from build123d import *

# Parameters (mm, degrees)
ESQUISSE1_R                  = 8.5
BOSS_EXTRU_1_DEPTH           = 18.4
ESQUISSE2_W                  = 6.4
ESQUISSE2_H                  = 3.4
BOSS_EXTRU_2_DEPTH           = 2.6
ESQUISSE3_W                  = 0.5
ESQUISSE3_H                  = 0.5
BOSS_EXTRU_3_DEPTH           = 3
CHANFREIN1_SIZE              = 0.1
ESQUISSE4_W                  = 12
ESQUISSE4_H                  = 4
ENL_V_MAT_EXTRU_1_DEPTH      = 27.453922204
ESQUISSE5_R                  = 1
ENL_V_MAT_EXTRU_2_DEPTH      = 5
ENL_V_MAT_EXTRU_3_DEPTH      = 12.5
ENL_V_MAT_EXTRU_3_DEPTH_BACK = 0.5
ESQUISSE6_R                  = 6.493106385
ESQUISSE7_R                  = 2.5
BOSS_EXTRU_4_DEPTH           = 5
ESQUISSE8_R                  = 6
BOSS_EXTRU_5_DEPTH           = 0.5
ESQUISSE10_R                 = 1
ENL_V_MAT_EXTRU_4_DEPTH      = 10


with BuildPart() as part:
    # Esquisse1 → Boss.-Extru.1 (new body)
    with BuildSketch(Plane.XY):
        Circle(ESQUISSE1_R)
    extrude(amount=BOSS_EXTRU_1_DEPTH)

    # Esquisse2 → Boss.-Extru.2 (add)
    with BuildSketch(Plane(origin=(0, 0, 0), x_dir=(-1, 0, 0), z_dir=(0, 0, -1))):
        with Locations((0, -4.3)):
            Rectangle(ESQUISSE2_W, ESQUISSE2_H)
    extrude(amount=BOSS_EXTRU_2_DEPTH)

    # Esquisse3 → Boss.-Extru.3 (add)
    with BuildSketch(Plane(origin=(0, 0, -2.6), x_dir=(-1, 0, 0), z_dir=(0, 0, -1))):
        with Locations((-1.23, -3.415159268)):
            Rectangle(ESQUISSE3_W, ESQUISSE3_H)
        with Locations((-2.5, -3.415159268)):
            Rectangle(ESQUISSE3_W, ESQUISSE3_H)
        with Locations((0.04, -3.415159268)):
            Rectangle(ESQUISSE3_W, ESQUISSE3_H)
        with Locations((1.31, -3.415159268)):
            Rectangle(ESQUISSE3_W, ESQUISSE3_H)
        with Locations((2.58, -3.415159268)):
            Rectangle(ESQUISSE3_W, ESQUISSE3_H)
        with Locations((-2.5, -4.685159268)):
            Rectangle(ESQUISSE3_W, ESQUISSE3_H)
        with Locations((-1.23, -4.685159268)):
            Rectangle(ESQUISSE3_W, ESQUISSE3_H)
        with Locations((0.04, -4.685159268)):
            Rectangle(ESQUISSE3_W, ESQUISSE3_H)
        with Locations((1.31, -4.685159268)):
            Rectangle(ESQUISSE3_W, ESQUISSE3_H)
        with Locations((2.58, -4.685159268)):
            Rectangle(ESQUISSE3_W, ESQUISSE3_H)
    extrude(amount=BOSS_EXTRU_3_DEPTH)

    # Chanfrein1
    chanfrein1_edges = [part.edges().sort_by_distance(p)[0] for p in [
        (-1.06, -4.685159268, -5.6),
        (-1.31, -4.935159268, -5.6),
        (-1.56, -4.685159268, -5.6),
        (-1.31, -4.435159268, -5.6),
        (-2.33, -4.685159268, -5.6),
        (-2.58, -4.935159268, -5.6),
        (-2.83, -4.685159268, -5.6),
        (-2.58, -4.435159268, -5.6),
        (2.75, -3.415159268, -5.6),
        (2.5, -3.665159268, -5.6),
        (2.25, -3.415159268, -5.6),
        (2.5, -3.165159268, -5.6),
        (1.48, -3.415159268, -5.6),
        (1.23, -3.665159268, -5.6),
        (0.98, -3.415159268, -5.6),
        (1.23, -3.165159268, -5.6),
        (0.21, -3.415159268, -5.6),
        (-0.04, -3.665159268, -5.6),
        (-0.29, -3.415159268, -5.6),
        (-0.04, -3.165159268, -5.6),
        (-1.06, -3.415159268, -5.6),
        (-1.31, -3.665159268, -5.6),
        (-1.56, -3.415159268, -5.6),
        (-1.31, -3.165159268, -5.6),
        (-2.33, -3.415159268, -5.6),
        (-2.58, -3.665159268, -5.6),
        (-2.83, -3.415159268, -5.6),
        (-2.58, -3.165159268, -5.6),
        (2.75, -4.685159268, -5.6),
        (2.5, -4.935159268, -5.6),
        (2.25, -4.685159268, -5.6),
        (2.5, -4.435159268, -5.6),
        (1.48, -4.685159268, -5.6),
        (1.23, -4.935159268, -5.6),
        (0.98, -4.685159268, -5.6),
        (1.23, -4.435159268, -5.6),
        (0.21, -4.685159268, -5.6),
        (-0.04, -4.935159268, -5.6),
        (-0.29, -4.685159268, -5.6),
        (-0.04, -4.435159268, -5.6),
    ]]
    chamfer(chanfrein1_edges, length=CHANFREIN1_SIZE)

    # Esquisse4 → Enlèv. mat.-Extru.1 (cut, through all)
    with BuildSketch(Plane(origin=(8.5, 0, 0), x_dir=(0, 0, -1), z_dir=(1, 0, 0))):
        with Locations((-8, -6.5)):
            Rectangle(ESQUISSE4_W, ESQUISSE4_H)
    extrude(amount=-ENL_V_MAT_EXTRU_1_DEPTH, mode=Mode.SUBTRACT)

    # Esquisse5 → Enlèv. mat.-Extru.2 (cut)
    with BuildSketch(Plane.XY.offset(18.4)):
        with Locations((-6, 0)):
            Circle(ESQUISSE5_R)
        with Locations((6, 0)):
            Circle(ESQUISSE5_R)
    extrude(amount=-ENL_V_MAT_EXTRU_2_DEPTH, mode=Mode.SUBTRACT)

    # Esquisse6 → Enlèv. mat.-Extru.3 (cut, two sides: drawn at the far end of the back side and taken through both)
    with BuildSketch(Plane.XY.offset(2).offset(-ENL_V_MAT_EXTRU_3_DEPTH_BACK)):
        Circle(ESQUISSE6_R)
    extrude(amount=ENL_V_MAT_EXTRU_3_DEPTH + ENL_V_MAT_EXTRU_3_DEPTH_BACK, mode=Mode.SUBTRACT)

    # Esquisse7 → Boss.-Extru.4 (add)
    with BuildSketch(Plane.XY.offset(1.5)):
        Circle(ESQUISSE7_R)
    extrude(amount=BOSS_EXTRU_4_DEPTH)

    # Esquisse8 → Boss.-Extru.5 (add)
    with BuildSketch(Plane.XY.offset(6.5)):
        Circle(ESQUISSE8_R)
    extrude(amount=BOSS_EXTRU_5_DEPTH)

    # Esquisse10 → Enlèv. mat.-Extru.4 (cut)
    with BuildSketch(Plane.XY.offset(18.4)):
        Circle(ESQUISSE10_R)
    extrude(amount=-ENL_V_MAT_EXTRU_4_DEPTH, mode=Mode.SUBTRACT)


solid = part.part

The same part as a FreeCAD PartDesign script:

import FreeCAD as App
import Part
import Sketcher

V = App.Vector


def edges_at(feature, points):
    """Names of the edges that pass closest to the given points."""
    edges = feature.Shape.Edges
    near = lambda p: min(range(len(edges)), key=lambda i: edges[i].distToShape(Part.Vertex(*p))[0])
    return sorted({f"Edge{near(p) + 1}" for p in points})

doc = App.newDocument("Part")
body = doc.addObject("PartDesign::Body", "Body")

# Sketch on XY plane
sketch1 = body.newObject("Sketcher::SketchObject", "Sketch")
sketch1.AttachmentSupport = (doc.getObject("XY_Plane"), [""])
sketch1.MapMode = "FlatFace"
sketch1.addGeometry(Part.Circle(V(0, 0, 0), V(0, 0, 1), 8), False)
sketch1.addConstraint([
    Sketcher.Constraint("Coincident", 0, 3, -1, 1),
    Sketcher.Constraint("Diameter", 0, 17.0),
])
pad1 = body.newObject("PartDesign::Pad", "Pad")
pad1.Profile = sketch1
pad1.Length = 18.4

# Sketch on XY plane
sketch2 = body.newObject("Sketcher::SketchObject", "Sketch001")
sketch2.AttachmentSupport = (doc.getObject("XY_Plane"), [""])
sketch2.MapMode = "FlatFace"
sketch2.addGeometry([
    Part.LineSegment(V(3.2, -2.6, 0), V(3.2, -6, 0)),
    Part.LineSegment(V(3.2, -6, 0), V(-3.2, -6, 0)),
    Part.LineSegment(V(-3.2, -6, 0), V(-3.2, -2.6, 0)),
    Part.LineSegment(V(-3.2, -2.6, 0), V(3.2, -2.6, 0)),
], False)
sketch2.addConstraint([
    Sketcher.Constraint("Coincident", 0, 2, 1, 1),
    Sketcher.Constraint("Coincident", 1, 2, 2, 1),
    Sketcher.Constraint("Coincident", 2, 2, 3, 1),
    Sketcher.Constraint("Coincident", 3, 2, 0, 1),
    Sketcher.Constraint("Vertical", 0),
    Sketcher.Constraint("Horizontal", 1),
    Sketcher.Constraint("Vertical", 2),
    Sketcher.Constraint("Horizontal", 3),
    Sketcher.Constraint("DistanceX", 1, 2, 1, 1, 6.4),
    Sketcher.Constraint("DistanceY", 0, 2, 0, 1, 3.4),
    Sketcher.Constraint("DistanceY", 0, 2, -1, 1, 6.0),
    Sketcher.Constraint("DistanceX", -1, 1, 0, 2, 3.2),
])
pad2 = body.newObject("PartDesign::Pad", "Pad001")
pad2.Profile = sketch2
pad2.Length = 2.6
pad2.Reversed = True

# Sketch on XY plane
sketch3 = body.newObject("Sketcher::SketchObject", "Sketch002")
sketch3.AttachmentSupport = (doc.getObject("XY_Plane"), [""])
sketch3.MapMode = "FlatFace"
sketch3.AttachmentOffset = App.Placement(V(0, 0, -2.6), App.Rotation())
sketch3.addGeometry([
    Part.LineSegment(V(1.5, -3.2, 0), V(1.5, -3.7, 0)),  # 0
    Part.LineSegment(V(1.5, -3.7, 0), V(1, -3.7, 0)),  # 1
    Part.LineSegment(V(1, -3.7, 0), V(1, -3.2, 0)),  # 2
    Part.LineSegment(V(1, -3.2, 0), V(1.5, -3.2, 0)),  # 3
    Part.LineSegment(V(2.8, -3.2, 0), V(2.8, -3.7, 0)),  # 4
    Part.LineSegment(V(2.8, -3.7, 0), V(2.2, -3.7, 0)),  # 5
    Part.LineSegment(V(2.2, -3.7, 0), V(2.2, -3.2, 0)),  # 6
    Part.LineSegment(V(2.2, -3.2, 0), V(2.8, -3.2, 0)),  # 7
    Part.LineSegment(V(0.2, -3.2, 0), V(0.2, -3.7, 0)),  # 8
    Part.LineSegment(V(0.2, -3.7, 0), V(-0.3, -3.7, 0)),  # 9
    Part.LineSegment(V(-0.3, -3.7, 0), V(-0.3, -3.2, 0)),  # 10
    Part.LineSegment(V(-0.3, -3.2, 0), V(0.2, -3.2, 0)),  # 11
    Part.LineSegment(V(-1.1, -3.2, 0), V(-1.1, -3.7, 0)),  # 12
    Part.LineSegment(V(-1.1, -3.7, 0), V(-1.6, -3.7, 0)),  # 13
    Part.LineSegment(V(-1.6, -3.7, 0), V(-1.6, -3.2, 0)),  # 14
    Part.LineSegment(V(-1.6, -3.2, 0), V(-1.1, -3.2, 0)),  # 15
    Part.LineSegment(V(-2.3, -3.2, 0), V(-2.3, -3.7, 0)),  # 16
    Part.LineSegment(V(-2.3, -3.7, 0), V(-2.8, -3.7, 0)),  # 17
    Part.LineSegment(V(-2.8, -3.7, 0), V(-2.8, -3.2, 0)),  # 18
    Part.LineSegment(V(-2.8, -3.2, 0), V(-2.3, -3.2, 0)),  # 19
    Part.LineSegment(V(2.8, -4.4, 0), V(2.8, -4.9, 0)),  # 20
    Part.LineSegment(V(2.8, -4.9, 0), V(2.2, -4.9, 0)),  # 21
    Part.LineSegment(V(2.2, -4.9, 0), V(2.2, -4.4, 0)),  # 22
    Part.LineSegment(V(2.2, -4.4, 0), V(2.8, -4.4, 0)),  # 23
    Part.LineSegment(V(1.5, -4.4, 0), V(1.5, -4.9, 0)),  # 24
    Part.LineSegment(V(1.5, -4.9, 0), V(1, -4.9, 0)),  # 25
    Part.LineSegment(V(1, -4.9, 0), V(1, -4.4, 0)),  # 26
    Part.LineSegment(V(1, -4.4, 0), V(1.5, -4.4, 0)),  # 27
    Part.LineSegment(V(0.2, -4.4, 0), V(0.2, -4.9, 0)),  # 28
    Part.LineSegment(V(0.2, -4.9, 0), V(-0.3, -4.9, 0)),  # 29
    Part.LineSegment(V(-0.3, -4.9, 0), V(-0.3, -4.4, 0)),  # 30
    Part.LineSegment(V(-0.3, -4.4, 0), V(0.2, -4.4, 0)),  # 31
    Part.LineSegment(V(-1.1, -4.4, 0), V(-1.1, -4.9, 0)),  # 32
    Part.LineSegment(V(-1.1, -4.9, 0), V(-1.6, -4.9, 0)),  # 33
    Part.LineSegment(V(-1.6, -4.9, 0), V(-1.6, -4.4, 0)),  # 34
    Part.LineSegment(V(-1.6, -4.4, 0), V(-1.1, -4.4, 0)),  # 35
    Part.LineSegment(V(-2.3, -4.4, 0), V(-2.3, -4.9, 0)),  # 36
    Part.LineSegment(V(-2.3, -4.9, 0), V(-2.8, -4.9, 0)),  # 37
    Part.LineSegment(V(-2.8, -4.9, 0), V(-2.8, -4.4, 0)),  # 38
    Part.LineSegment(V(-2.8, -4.4, 0), V(-2.3, -4.4, 0)),  # 39
], False)
sketch3.addConstraint([
    Sketcher.Constraint("Coincident", 0, 2, 1, 1),
    Sketcher.Constraint("Coincident", 1, 2, 2, 1),
    Sketcher.Constraint("Coincident", 2, 2, 3, 1),
    Sketcher.Constraint("Coincident", 3, 2, 0, 1),
    Sketcher.Constraint("Coincident", 4, 2, 5, 1),
    Sketcher.Constraint("Coincident", 5, 2, 6, 1),
    Sketcher.Constraint("Coincident", 6, 2, 7, 1),
    Sketcher.Constraint("Coincident", 7, 2, 4, 1),
    Sketcher.Constraint("Coincident", 8, 2, 9, 1),
    Sketcher.Constraint("Coincident", 9, 2, 10, 1),
    Sketcher.Constraint("Coincident", 10, 2, 11, 1),
    Sketcher.Constraint("Coincident", 11, 2, 8, 1),
    Sketcher.Constraint("Coincident", 12, 2, 13, 1),
    Sketcher.Constraint("Coincident", 13, 2, 14, 1),
    Sketcher.Constraint("Coincident", 14, 2, 15, 1),
    Sketcher.Constraint("Coincident", 15, 2, 12, 1),
    Sketcher.Constraint("Coincident", 16, 2, 17, 1),
    Sketcher.Constraint("Coincident", 17, 2, 18, 1),
    Sketcher.Constraint("Coincident", 18, 2, 19, 1),
    Sketcher.Constraint("Coincident", 19, 2, 16, 1),
    Sketcher.Constraint("Coincident", 20, 2, 21, 1),
    Sketcher.Constraint("Coincident", 21, 2, 22, 1),
    Sketcher.Constraint("Coincident", 22, 2, 23, 1),
    Sketcher.Constraint("Coincident", 23, 2, 20, 1),
    Sketcher.Constraint("Coincident", 24, 2, 25, 1),
    Sketcher.Constraint("Coincident", 25, 2, 26, 1),
    Sketcher.Constraint("Coincident", 26, 2, 27, 1),
    Sketcher.Constraint("Coincident", 27, 2, 24, 1),
    Sketcher.Constraint("Coincident", 28, 2, 29, 1),
    Sketcher.Constraint("Coincident", 29, 2, 30, 1),
    Sketcher.Constraint("Coincident", 30, 2, 31, 1),
    Sketcher.Constraint("Coincident", 31, 2, 28, 1),
    Sketcher.Constraint("Coincident", 32, 2, 33, 1),
    Sketcher.Constraint("Coincident", 33, 2, 34, 1),
    Sketcher.Constraint("Coincident", 34, 2, 35, 1),
    Sketcher.Constraint("Coincident", 35, 2, 32, 1),
    Sketcher.Constraint("Coincident", 36, 2, 37, 1),
    Sketcher.Constraint("Coincident", 37, 2, 38, 1),
    Sketcher.Constraint("Coincident", 38, 2, 39, 1),
    Sketcher.Constraint("Coincident", 39, 2, 36, 1),
    Sketcher.Constraint("Vertical", 0),
    Sketcher.Constraint("Horizontal", 1),
    Sketcher.Constraint("Vertical", 2),
    Sketcher.Constraint("Horizontal", 3),
    Sketcher.Constraint("Vertical", 4),
    Sketcher.Constraint("Horizontal", 5),
    Sketcher.Constraint("Vertical", 6),
    Sketcher.Constraint("Horizontal", 7),
    Sketcher.Constraint("Vertical", 8),
    Sketcher.Constraint("Horizontal", 9),
    Sketcher.Constraint("Vertical", 10),
    Sketcher.Constraint("Horizontal", 11),
    Sketcher.Constraint("Vertical", 12),
    Sketcher.Constraint("Horizontal", 13),
    Sketcher.Constraint("Vertical", 14),
    Sketcher.Constraint("Horizontal", 15),
    Sketcher.Constraint("Vertical", 16),
    Sketcher.Constraint("Horizontal", 17),
    Sketcher.Constraint("Vertical", 18),
    Sketcher.Constraint("Horizontal", 19),
    Sketcher.Constraint("Vertical", 20),
    Sketcher.Constraint("Horizontal", 21),
    Sketcher.Constraint("Vertical", 22),
    Sketcher.Constraint("Horizontal", 23),
    Sketcher.Constraint("Vertical", 24),
    Sketcher.Constraint("Horizontal", 25),
    Sketcher.Constraint("Vertical", 26),
    Sketcher.Constraint("Horizontal", 27),
    Sketcher.Constraint("Vertical", 28),
    Sketcher.Constraint("Horizontal", 29),
    Sketcher.Constraint("Vertical", 30),
    Sketcher.Constraint("Horizontal", 31),
    Sketcher.Constraint("Vertical", 32),
    Sketcher.Constraint("Horizontal", 33),
    Sketcher.Constraint("Vertical", 34),
    Sketcher.Constraint("Horizontal", 35),
    Sketcher.Constraint("Vertical", 36),
    Sketcher.Constraint("Horizontal", 37),
    Sketcher.Constraint("Vertical", 38),
    Sketcher.Constraint("Horizontal", 39),
    Sketcher.Constraint("Horizontal", 1, 2, 4, 2),
    Sketcher.Constraint("Horizontal", 3, 2, 6, 2),
    Sketcher.Constraint("Horizontal", 5, 2, 8, 2),
    Sketcher.Constraint("Horizontal", 7, 2, 10, 2),
    Sketcher.Constraint("Horizontal", 9, 2, 12, 2),
    Sketcher.Constraint("Horizontal", 11, 2, 14, 2),
    Sketcher.Constraint("Horizontal", 13, 2, 16, 2),
    Sketcher.Constraint("Horizontal", 15, 2, 18, 2),
    Sketcher.Constraint("Horizontal", 21, 2, 24, 2),
    Sketcher.Constraint("Horizontal", 23, 2, 26, 2),
    Sketcher.Constraint("Horizontal", 25, 2, 28, 2),
    Sketcher.Constraint("Horizontal", 27, 2, 30, 2),
    Sketcher.Constraint("Horizontal", 29, 2, 32, 2),
    Sketcher.Constraint("Horizontal", 31, 2, 34, 2),
    Sketcher.Constraint("Horizontal", 33, 2, 36, 2),
    Sketcher.Constraint("Horizontal", 35, 2, 38, 2),
    Sketcher.Constraint("Vertical", 7, 2, 20, 2),
    Sketcher.Constraint("Vertical", 6, 2, 21, 2),
    Sketcher.Constraint("Vertical", 3, 2, 24, 2),
    Sketcher.Constraint("Vertical", 2, 2, 25, 2),
    Sketcher.Constraint("Vertical", 11, 2, 28, 2),
    Sketcher.Constraint("Vertical", 10, 2, 29, 2),
    Sketcher.Constraint("Vertical", 15, 2, 32, 2),
    Sketcher.Constraint("Vertical", 14, 2, 33, 2),
    Sketcher.Constraint("Vertical", 19, 2, 36, 2),
    Sketcher.Constraint("Vertical", 18, 2, 37, 2),
    Sketcher.Constraint("Equal", 3, 5),
    Sketcher.Constraint("Equal", 7, 9),
    Sketcher.Constraint("Equal", 11, 13),
    Sketcher.Constraint("Equal", 15, 17),
    Sketcher.Constraint("Equal", 39, 0),
    Sketcher.Constraint("Equal", 18, 20),
    Sketcher.Constraint("DistanceX", 1, 2, 1, 1, 0.5),
    Sketcher.Constraint("DistanceX", -1, 1, 0, 2, 1.48),
    Sketcher.Constraint("DistanceX", -1, 1, 4, 2, 2.75),
    Sketcher.Constraint("DistanceX", -1, 1, 8, 2, 0.21),
    Sketcher.Constraint("DistanceX", 12, 2, -1, 1, 1.06),
    Sketcher.Constraint("DistanceX", 16, 2, -1, 1, 2.33),
    Sketcher.Constraint("DistanceY", 20, 2, 4, 2, 1.27),
    Sketcher.Constraint("DistanceY", 0, 2, -1, 1, 3.665159),
])
pad3 = body.newObject("PartDesign::Pad", "Pad002")
pad3.Profile = sketch3
pad3.Length = 3
pad3.Reversed = True
doc.recompute()

chamfer = body.newObject("PartDesign::Chamfer", "Chamfer")
chamfer.Base = (pad3, edges_at(pad3, [
    (-1.06, -4.685, -5.6),
    (-1.31, -4.935, -5.6),
    (-1.56, -4.685, -5.6),
    (-1.31, -4.435, -5.6),
    (-2.33, -4.685, -5.6),
    (-2.58, -4.935, -5.6),
    (-2.83, -4.685, -5.6),
    (-2.58, -4.435, -5.6),
    (2.75, -3.415, -5.6),
    (2.5, -3.665, -5.6),
    (2.25, -3.415, -5.6),
    (2.5, -3.165, -5.6),
    (1.48, -3.415, -5.6),
    (1.23, -3.665, -5.6),
    (0.98, -3.415, -5.6),
    (1.23, -3.165, -5.6),
    (0.21, -3.415, -5.6),
    (-0.04, -3.665, -5.6),
    (-0.29, -3.415, -5.6),
    (-0.04, -3.165, -5.6),
    (-1.06, -3.415, -5.6),
    (-1.31, -3.665, -5.6),
    (-1.56, -3.415, -5.6),
    (-1.31, -3.165, -5.6),
    (-2.33, -3.415, -5.6),
    (-2.58, -3.665, -5.6),
    (-2.83, -3.415, -5.6),
    (-2.58, -3.165, -5.6),
    (2.75, -4.685, -5.6),
    (2.5, -4.935, -5.6),
    (2.25, -4.685, -5.6),
    (2.5, -4.435, -5.6),
    (1.48, -4.685, -5.6),
    (1.23, -4.935, -5.6),
    (0.98, -4.685, -5.6),
    (1.23, -4.435, -5.6),
    (0.21, -4.685, -5.6),
    (-0.04, -4.935, -5.6),
    (-0.29, -4.685, -5.6),
    (-0.04, -4.435, -5.6),
]))
chamfer.Size = 0.1

# Sketch on YZ plane
sketch4 = body.newObject("Sketcher::SketchObject", "Sketch003")
sketch4.AttachmentSupport = (doc.getObject("YZ_Plane"), [""])
sketch4.MapMode = "FlatFace"
sketch4.AttachmentOffset = App.Placement(V(0, 0, 8.5), App.Rotation())
sketch4.addGeometry([
    Part.LineSegment(V(-4.5, 14, 0), V(-8.5, 14, 0)),
    Part.LineSegment(V(-8.5, 14, 0), V(-8.5, 2, 0)),
    Part.LineSegment(V(-8.5, 2, 0), V(-4.5, 2, 0)),
    Part.LineSegment(V(-4.5, 2, 0), V(-4.5, 14, 0)),
], False)
sketch4.addConstraint([
    Sketcher.Constraint("Coincident", 0, 2, 1, 1),
    Sketcher.Constraint("Coincident", 1, 2, 2, 1),
    Sketcher.Constraint("Coincident", 2, 2, 3, 1),
    Sketcher.Constraint("Coincident", 3, 2, 0, 1),
    Sketcher.Constraint("Horizontal", 0),
    Sketcher.Constraint("Vertical", 1),
    Sketcher.Constraint("Horizontal", 2),
    Sketcher.Constraint("Vertical", 3),
    Sketcher.Constraint("DistanceX", 0, 2, 0, 1, 4.0),
    Sketcher.Constraint("DistanceY", 1, 2, 1, 1, 12.0),
    Sketcher.Constraint("DistanceY", -1, 1, 0, 2, 14.0),
    Sketcher.Constraint("DistanceX", 0, 2, -1, 1, 8.5),
])
pocket1 = body.newObject("PartDesign::Pocket", "Pocket")
pocket1.Profile = sketch4
pocket1.Type = "ThroughAll"

# Sketch on XY plane
sketch5 = body.newObject("Sketcher::SketchObject", "Sketch004")
sketch5.AttachmentSupport = (doc.getObject("XY_Plane"), [""])
sketch5.MapMode = "FlatFace"
sketch5.AttachmentOffset = App.Placement(V(0, 0, 18.4), App.Rotation())
sketch5.addGeometry([
    Part.Circle(V(-6, 0, 0), V(0, 0, 1), 1),
    Part.Circle(V(6, 0, 0), V(0, 0, 1), 1),
], False)
sketch5.addConstraint([
    Sketcher.Constraint("Equal", 0, 1),
    Sketcher.Constraint("Symmetric", 0, 3, 1, 3, -1, 1),
    Sketcher.Constraint("PointOnObject", 0, 3, -1),
    Sketcher.Constraint("Diameter", 0, 2.0),
    Sketcher.Constraint("DistanceX", 0, 3, -1, 1, 6.0),
])
pocket2 = body.newObject("PartDesign::Pocket", "Pocket001")
pocket2.Profile = sketch5
pocket2.Length = 5

# Sketch on XY plane
sketch6 = body.newObject("Sketcher::SketchObject", "Sketch005")
sketch6.AttachmentSupport = (doc.getObject("XY_Plane"), [""])
sketch6.MapMode = "FlatFace"
sketch6.AttachmentOffset = App.Placement(V(0, 0, 2), App.Rotation())
sketch6.addGeometry(Part.Circle(V(0, 0, 0), V(0, 0, 1), 6), False)
sketch6.addConstraint([
    Sketcher.Constraint("Coincident", 0, 3, -1, 1),
    Sketcher.Constraint("Diameter", 0, 12.986213),
])
pocket3 = body.newObject("PartDesign::Pocket", "Pocket002")
pocket3.Profile = sketch6
pocket3.Type = "TwoLengths"
pocket3.Length = 12.5
pocket3.Length2 = 0.5
pocket3.Reversed = True

# Sketch on XY plane
sketch7 = body.newObject("Sketcher::SketchObject", "Sketch006")
sketch7.AttachmentSupport = (doc.getObject("XY_Plane"), [""])
sketch7.MapMode = "FlatFace"
sketch7.AttachmentOffset = App.Placement(V(0, 0, 1.5), App.Rotation())
sketch7.addGeometry(Part.Circle(V(0, 0, 0), V(0, 0, 1), 2.5), False)
sketch7.addConstraint([
    Sketcher.Constraint("Coincident", 0, 3, -1, 1),
    Sketcher.Constraint("Diameter", 0, 5.0),
])
pad4 = body.newObject("PartDesign::Pad", "Pad003")
pad4.Profile = sketch7
pad4.Length = 5

# Sketch on XY plane
sketch8 = body.newObject("Sketcher::SketchObject", "Sketch007")
sketch8.AttachmentSupport = (doc.getObject("XY_Plane"), [""])
sketch8.MapMode = "FlatFace"
sketch8.AttachmentOffset = App.Placement(V(0, 0, 6.5), App.Rotation())
sketch8.addGeometry(Part.Circle(V(0, 0, 0), V(0, 0, 1), 6), False)
sketch8.addConstraint([
    Sketcher.Constraint("Coincident", 0, 3, -1, 1),
    Sketcher.Constraint("Diameter", 0, 12.0),
])
pad5 = body.newObject("PartDesign::Pad", "Pad004")
pad5.Profile = sketch8
pad5.Length = 0.5

# Sketch on XY plane
sketch9 = body.newObject("Sketcher::SketchObject", "Sketch008")
sketch9.AttachmentSupport = (doc.getObject("XY_Plane"), [""])
sketch9.MapMode = "FlatFace"
sketch9.AttachmentOffset = App.Placement(V(0, 0, 18.4), App.Rotation())
sketch9.addGeometry(Part.Circle(V(0, 0, 0), V(0, 0, 1), 1), False)
sketch9.addConstraint([
    Sketcher.Constraint("Coincident", 0, 3, -1, 1),
    Sketcher.Constraint("Diameter", 0, 2.0),
])
pocket4 = body.newObject("PartDesign::Pocket", "Pocket003")
pocket4.Profile = sketch9
pocket4.Length = 10

doc.recompute()
